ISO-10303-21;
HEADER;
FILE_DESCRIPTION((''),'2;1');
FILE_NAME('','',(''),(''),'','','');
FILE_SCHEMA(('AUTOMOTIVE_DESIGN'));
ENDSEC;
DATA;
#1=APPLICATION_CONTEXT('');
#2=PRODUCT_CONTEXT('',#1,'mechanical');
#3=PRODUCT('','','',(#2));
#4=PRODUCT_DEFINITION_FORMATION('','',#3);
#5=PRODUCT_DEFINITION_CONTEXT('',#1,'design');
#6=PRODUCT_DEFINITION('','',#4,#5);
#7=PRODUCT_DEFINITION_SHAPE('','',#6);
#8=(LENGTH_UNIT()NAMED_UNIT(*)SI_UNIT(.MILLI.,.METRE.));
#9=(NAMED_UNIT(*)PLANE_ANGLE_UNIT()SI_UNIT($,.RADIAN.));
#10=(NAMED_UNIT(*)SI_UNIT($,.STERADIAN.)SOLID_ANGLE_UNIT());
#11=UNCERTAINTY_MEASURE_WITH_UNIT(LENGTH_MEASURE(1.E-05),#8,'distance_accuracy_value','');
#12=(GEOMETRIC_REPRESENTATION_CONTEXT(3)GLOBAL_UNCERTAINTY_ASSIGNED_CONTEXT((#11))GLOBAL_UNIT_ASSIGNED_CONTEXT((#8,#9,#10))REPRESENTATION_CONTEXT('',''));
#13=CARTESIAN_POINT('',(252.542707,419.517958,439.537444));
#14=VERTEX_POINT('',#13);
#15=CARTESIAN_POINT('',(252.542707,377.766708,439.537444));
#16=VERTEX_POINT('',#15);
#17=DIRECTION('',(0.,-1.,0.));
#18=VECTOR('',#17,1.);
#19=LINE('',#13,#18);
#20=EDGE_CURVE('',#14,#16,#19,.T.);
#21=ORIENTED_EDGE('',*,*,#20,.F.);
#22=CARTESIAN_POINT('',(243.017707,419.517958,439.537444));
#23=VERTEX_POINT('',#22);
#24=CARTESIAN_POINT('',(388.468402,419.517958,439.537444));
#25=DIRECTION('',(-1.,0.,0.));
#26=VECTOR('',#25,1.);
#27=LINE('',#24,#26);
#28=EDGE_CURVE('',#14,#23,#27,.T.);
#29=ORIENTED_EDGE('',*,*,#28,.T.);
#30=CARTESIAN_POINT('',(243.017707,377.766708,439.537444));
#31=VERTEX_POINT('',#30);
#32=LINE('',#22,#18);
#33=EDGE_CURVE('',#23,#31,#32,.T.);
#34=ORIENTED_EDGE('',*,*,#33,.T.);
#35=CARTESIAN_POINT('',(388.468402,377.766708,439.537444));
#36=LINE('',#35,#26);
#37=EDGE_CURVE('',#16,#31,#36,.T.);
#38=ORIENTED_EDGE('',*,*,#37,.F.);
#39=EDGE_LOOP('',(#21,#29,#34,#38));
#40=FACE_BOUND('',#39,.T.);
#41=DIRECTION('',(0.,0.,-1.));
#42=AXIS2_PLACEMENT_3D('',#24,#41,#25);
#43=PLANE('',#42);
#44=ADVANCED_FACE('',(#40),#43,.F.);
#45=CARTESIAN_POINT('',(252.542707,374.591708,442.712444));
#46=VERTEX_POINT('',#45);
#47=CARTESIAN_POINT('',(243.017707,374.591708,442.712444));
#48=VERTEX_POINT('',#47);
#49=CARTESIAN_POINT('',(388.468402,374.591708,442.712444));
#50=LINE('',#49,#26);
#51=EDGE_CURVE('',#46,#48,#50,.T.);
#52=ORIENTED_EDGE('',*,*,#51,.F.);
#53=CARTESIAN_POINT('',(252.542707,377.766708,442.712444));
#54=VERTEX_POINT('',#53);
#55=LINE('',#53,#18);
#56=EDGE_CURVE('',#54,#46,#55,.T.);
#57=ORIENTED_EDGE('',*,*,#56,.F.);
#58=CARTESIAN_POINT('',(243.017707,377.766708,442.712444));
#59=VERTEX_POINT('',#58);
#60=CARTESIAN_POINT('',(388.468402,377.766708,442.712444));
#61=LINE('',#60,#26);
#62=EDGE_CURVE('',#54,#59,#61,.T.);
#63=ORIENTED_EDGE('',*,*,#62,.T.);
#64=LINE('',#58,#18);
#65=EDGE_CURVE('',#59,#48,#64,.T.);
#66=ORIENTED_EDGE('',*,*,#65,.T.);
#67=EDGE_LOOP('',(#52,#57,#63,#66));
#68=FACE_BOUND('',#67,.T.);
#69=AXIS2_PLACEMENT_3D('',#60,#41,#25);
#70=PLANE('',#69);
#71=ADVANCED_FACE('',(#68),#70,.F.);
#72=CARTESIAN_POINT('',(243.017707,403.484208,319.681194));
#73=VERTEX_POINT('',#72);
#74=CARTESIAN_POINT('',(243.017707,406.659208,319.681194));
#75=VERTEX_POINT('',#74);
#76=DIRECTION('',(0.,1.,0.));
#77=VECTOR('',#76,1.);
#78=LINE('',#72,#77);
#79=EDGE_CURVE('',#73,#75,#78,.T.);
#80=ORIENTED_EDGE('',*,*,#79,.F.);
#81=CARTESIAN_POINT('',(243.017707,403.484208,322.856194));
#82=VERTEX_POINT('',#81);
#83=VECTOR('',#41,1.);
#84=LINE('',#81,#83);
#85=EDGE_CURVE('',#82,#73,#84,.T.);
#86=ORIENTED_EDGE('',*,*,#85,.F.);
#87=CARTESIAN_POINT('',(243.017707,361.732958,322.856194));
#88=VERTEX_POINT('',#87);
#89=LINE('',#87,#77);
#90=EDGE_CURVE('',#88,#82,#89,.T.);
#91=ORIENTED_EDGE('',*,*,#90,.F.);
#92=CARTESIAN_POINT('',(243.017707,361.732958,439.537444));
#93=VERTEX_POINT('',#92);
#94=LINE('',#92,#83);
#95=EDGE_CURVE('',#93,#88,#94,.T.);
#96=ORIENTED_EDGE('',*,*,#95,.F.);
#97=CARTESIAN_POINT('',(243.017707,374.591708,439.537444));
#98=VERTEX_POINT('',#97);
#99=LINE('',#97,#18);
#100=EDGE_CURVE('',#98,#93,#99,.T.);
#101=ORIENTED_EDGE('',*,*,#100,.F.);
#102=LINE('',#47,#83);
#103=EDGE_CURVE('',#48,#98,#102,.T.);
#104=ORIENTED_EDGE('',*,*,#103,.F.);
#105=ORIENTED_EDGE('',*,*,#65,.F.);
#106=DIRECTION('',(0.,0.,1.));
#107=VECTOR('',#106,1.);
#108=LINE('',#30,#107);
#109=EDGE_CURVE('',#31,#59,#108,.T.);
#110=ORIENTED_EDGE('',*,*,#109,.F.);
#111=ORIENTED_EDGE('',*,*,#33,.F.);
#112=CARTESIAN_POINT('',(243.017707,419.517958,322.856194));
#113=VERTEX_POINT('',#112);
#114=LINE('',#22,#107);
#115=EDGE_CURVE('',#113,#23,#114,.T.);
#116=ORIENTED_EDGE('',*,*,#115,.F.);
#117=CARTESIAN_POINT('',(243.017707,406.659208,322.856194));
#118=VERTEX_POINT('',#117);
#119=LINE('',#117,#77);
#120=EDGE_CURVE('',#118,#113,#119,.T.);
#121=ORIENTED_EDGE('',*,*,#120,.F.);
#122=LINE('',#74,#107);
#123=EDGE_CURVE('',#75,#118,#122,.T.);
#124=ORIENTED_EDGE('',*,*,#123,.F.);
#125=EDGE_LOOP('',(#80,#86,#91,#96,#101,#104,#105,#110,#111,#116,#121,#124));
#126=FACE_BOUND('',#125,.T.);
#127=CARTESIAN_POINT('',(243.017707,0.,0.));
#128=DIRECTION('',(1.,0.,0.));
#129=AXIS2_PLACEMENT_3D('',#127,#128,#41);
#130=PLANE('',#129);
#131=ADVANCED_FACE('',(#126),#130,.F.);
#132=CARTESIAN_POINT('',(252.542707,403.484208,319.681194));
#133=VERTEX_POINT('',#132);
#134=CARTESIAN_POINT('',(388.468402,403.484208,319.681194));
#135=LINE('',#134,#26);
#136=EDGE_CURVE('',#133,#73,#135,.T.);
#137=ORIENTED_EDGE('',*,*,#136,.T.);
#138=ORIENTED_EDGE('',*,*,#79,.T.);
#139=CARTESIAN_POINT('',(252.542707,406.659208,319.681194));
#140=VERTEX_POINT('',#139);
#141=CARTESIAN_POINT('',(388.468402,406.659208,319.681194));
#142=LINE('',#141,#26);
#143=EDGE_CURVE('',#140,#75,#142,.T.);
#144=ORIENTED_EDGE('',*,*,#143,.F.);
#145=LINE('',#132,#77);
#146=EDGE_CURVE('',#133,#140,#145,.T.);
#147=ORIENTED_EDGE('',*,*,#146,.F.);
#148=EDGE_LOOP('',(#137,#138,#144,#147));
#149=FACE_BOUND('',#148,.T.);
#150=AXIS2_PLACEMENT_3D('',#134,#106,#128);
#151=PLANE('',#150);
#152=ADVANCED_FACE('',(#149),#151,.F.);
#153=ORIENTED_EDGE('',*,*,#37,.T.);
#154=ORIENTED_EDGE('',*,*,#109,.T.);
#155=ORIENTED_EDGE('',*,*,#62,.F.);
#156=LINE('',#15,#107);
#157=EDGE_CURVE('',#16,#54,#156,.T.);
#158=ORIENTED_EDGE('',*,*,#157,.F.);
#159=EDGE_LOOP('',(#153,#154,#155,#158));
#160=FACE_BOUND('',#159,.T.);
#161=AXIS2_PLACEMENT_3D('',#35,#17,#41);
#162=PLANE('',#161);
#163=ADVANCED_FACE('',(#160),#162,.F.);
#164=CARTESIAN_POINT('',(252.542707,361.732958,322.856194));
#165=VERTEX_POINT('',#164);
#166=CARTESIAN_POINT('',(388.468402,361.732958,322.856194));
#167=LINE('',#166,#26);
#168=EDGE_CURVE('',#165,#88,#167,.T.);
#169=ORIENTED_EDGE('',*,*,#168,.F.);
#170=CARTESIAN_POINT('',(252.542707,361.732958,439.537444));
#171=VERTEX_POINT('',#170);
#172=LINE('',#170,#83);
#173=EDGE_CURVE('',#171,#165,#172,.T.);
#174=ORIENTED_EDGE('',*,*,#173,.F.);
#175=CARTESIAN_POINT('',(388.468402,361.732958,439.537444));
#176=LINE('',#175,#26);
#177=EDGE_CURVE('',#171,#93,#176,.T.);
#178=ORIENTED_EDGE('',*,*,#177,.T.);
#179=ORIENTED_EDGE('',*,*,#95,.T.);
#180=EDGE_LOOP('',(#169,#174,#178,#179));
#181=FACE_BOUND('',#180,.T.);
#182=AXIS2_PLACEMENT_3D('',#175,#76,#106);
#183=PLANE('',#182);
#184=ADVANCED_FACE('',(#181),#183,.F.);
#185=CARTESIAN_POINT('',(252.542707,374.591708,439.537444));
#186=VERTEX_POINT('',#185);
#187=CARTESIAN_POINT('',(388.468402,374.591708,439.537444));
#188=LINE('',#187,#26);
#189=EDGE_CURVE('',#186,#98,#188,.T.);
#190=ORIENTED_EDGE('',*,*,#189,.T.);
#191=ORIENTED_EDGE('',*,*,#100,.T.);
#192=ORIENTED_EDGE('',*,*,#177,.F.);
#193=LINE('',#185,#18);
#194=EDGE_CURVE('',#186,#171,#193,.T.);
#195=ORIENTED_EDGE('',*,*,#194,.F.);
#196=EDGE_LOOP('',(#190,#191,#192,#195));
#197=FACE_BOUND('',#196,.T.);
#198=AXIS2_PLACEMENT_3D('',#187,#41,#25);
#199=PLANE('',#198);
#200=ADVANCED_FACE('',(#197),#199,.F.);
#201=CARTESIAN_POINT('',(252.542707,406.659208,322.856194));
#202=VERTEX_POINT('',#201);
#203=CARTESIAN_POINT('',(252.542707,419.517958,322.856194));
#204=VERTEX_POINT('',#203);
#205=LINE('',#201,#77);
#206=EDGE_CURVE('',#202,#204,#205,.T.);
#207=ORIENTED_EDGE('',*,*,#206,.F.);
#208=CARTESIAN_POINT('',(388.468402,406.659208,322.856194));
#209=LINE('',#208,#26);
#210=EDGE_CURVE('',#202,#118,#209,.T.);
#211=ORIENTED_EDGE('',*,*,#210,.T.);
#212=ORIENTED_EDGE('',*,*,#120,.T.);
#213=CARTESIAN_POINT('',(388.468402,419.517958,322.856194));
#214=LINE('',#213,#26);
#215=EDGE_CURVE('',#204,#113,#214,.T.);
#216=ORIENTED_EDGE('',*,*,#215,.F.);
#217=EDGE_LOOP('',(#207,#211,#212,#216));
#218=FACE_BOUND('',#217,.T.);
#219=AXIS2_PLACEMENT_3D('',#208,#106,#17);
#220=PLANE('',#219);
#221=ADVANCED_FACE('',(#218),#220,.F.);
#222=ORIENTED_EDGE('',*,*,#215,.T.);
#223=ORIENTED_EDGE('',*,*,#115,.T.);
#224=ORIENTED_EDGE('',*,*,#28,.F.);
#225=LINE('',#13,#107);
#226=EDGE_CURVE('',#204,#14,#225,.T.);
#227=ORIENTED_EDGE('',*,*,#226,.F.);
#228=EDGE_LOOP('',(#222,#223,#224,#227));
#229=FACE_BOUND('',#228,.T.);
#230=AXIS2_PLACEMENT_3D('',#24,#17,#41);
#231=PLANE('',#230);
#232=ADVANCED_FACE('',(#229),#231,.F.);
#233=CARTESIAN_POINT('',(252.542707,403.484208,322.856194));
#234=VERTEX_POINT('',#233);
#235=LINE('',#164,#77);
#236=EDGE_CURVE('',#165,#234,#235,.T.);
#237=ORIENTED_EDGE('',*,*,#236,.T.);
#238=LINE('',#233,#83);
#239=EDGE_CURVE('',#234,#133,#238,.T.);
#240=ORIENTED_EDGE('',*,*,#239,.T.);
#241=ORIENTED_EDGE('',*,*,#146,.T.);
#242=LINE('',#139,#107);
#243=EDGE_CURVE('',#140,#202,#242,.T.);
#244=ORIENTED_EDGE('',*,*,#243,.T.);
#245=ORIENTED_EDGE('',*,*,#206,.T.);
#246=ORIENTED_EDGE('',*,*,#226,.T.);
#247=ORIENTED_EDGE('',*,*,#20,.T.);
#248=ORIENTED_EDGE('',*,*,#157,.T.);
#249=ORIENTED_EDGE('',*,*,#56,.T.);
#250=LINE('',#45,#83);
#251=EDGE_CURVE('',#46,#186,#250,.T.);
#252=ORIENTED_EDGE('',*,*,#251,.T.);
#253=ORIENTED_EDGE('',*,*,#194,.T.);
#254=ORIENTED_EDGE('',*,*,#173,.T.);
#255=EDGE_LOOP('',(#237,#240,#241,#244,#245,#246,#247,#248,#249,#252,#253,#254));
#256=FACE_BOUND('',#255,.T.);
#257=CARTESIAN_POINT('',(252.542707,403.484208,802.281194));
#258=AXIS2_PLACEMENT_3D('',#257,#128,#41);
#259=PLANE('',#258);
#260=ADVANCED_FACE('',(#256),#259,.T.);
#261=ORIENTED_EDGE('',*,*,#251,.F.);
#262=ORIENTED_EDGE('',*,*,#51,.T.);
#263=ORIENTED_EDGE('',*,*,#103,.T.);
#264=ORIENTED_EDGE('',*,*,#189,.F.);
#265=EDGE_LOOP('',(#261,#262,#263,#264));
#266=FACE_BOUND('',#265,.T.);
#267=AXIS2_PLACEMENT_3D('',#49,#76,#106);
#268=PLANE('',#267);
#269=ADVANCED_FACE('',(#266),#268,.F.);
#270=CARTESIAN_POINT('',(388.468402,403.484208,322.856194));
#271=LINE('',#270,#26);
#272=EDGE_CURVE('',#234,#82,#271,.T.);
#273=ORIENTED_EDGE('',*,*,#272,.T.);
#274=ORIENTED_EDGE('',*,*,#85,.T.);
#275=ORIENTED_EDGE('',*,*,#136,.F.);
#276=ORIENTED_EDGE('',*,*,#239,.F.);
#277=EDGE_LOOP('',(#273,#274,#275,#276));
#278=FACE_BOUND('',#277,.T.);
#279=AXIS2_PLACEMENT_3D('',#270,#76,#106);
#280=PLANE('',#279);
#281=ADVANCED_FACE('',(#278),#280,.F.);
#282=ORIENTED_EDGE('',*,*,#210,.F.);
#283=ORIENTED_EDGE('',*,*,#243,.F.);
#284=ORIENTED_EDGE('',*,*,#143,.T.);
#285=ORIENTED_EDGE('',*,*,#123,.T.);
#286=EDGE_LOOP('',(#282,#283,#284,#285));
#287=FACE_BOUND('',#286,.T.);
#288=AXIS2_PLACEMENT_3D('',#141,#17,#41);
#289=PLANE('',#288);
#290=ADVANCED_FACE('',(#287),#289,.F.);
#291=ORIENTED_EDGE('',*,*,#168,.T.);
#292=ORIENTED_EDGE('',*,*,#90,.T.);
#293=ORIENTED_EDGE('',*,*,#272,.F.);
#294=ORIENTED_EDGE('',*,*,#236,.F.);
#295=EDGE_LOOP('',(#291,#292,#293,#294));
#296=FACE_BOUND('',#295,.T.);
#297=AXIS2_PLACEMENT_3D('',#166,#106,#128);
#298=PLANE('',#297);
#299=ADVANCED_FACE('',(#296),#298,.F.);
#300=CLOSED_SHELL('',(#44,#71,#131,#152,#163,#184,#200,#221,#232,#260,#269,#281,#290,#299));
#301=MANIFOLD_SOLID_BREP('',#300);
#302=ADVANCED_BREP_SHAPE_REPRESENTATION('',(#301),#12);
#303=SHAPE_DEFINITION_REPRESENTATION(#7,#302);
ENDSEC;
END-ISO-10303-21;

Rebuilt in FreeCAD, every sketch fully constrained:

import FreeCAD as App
import Part
import Sketcher
Q = App.Units.Quantity


def add_polygon(sketch, points):
    """Adds a closed chain of lines whose ends are joined by coincident constraints."""
    first, n = sketch.GeometryCount, len(points)
    for a, b in zip(points, points[1:] + points[:1]):
        sketch.addGeometry(Part.LineSegment(App.Vector(*a, 0), App.Vector(*b, 0)), False)
    for i in range(n):
        sketch.addConstraint(Sketcher.Constraint("Coincident", first + i, 2, first + (i + 1) % n, 1))

doc = App.newDocument("Part")
body = doc.addObject("PartDesign::Body", "Body")

sketch1 = doc.addObject("Sketcher::SketchObject", "Sketch")
body.addObject(sketch1)
sketch1.AttachmentSupport = (doc.YZ_Plane, [""])
sketch1.MapMode = "FlatFace"
sketch1.AttachmentOffset = App.Placement(App.Vector(0, 0, 243.017707), App.Rotation())
add_polygon(sketch1, [(406.7, 319.7), (406.7, 322.9), (419.5, 322.9), (419.5, 439.5), (377.8, 439.5), (377.8, 442.7), (374.6, 442.7), (374.6, 439.5), (361.7, 439.5), (361.7, 322.9), (403.5, 322.9), (403.5, 319.7)])
sketch1.addConstraint([
    Sketcher.Constraint("Vertical", 0),
    Sketcher.Constraint("Horizontal", 1),
    Sketcher.Constraint("Vertical", 2),
    Sketcher.Constraint("Horizontal", 3),
    Sketcher.Constraint("Vertical", 4),
    Sketcher.Constraint("Horizontal", 5),
    Sketcher.Constraint("Vertical", 6),
    Sketcher.Constraint("Horizontal", 7),
    Sketcher.Constraint("Vertical", 8),
    Sketcher.Constraint("Horizontal", 9),
    Sketcher.Constraint("Vertical", 10),
    Sketcher.Constraint("Horizontal", 11),
    Sketcher.Constraint("Horizontal", 3, 2, 6, 2),
    Sketcher.Constraint("Horizontal", 1, 2, 8, 2),
    Sketcher.Constraint("Equal", 1, 7),
    Sketcher.Constraint("Equal", 3, 9),
    Sketcher.Constraint("Equal", 11, 0),
    Sketcher.Constraint("Equal", 0, 4),
    Sketcher.Constraint("DistanceX", 5, 2, 5, 1, Q("0.125 in")),
    Sketcher.Constraint("DistanceY", 2, 1, 2, 2, Q("4.59375 in")),
    Sketcher.Constraint("DistanceX", 7, 2, 2, 2, Q("2.275 in")),
    Sketcher.Constraint("DistanceX", 3, 2, 0, 2, Q("1.1375 in")),
    Sketcher.Constraint("DistanceX", -1, 1, 0, 2, 406.659208),
    Sketcher.Constraint("DistanceY", -1, 1, 0, 2, 322.856194),
])
pad1 = doc.addObject("PartDesign::Pad", "Pad")
body.addObject(pad1)
pad1.Profile = sketch1
pad1.Length = Q("0.375 in")

doc.recompute()
